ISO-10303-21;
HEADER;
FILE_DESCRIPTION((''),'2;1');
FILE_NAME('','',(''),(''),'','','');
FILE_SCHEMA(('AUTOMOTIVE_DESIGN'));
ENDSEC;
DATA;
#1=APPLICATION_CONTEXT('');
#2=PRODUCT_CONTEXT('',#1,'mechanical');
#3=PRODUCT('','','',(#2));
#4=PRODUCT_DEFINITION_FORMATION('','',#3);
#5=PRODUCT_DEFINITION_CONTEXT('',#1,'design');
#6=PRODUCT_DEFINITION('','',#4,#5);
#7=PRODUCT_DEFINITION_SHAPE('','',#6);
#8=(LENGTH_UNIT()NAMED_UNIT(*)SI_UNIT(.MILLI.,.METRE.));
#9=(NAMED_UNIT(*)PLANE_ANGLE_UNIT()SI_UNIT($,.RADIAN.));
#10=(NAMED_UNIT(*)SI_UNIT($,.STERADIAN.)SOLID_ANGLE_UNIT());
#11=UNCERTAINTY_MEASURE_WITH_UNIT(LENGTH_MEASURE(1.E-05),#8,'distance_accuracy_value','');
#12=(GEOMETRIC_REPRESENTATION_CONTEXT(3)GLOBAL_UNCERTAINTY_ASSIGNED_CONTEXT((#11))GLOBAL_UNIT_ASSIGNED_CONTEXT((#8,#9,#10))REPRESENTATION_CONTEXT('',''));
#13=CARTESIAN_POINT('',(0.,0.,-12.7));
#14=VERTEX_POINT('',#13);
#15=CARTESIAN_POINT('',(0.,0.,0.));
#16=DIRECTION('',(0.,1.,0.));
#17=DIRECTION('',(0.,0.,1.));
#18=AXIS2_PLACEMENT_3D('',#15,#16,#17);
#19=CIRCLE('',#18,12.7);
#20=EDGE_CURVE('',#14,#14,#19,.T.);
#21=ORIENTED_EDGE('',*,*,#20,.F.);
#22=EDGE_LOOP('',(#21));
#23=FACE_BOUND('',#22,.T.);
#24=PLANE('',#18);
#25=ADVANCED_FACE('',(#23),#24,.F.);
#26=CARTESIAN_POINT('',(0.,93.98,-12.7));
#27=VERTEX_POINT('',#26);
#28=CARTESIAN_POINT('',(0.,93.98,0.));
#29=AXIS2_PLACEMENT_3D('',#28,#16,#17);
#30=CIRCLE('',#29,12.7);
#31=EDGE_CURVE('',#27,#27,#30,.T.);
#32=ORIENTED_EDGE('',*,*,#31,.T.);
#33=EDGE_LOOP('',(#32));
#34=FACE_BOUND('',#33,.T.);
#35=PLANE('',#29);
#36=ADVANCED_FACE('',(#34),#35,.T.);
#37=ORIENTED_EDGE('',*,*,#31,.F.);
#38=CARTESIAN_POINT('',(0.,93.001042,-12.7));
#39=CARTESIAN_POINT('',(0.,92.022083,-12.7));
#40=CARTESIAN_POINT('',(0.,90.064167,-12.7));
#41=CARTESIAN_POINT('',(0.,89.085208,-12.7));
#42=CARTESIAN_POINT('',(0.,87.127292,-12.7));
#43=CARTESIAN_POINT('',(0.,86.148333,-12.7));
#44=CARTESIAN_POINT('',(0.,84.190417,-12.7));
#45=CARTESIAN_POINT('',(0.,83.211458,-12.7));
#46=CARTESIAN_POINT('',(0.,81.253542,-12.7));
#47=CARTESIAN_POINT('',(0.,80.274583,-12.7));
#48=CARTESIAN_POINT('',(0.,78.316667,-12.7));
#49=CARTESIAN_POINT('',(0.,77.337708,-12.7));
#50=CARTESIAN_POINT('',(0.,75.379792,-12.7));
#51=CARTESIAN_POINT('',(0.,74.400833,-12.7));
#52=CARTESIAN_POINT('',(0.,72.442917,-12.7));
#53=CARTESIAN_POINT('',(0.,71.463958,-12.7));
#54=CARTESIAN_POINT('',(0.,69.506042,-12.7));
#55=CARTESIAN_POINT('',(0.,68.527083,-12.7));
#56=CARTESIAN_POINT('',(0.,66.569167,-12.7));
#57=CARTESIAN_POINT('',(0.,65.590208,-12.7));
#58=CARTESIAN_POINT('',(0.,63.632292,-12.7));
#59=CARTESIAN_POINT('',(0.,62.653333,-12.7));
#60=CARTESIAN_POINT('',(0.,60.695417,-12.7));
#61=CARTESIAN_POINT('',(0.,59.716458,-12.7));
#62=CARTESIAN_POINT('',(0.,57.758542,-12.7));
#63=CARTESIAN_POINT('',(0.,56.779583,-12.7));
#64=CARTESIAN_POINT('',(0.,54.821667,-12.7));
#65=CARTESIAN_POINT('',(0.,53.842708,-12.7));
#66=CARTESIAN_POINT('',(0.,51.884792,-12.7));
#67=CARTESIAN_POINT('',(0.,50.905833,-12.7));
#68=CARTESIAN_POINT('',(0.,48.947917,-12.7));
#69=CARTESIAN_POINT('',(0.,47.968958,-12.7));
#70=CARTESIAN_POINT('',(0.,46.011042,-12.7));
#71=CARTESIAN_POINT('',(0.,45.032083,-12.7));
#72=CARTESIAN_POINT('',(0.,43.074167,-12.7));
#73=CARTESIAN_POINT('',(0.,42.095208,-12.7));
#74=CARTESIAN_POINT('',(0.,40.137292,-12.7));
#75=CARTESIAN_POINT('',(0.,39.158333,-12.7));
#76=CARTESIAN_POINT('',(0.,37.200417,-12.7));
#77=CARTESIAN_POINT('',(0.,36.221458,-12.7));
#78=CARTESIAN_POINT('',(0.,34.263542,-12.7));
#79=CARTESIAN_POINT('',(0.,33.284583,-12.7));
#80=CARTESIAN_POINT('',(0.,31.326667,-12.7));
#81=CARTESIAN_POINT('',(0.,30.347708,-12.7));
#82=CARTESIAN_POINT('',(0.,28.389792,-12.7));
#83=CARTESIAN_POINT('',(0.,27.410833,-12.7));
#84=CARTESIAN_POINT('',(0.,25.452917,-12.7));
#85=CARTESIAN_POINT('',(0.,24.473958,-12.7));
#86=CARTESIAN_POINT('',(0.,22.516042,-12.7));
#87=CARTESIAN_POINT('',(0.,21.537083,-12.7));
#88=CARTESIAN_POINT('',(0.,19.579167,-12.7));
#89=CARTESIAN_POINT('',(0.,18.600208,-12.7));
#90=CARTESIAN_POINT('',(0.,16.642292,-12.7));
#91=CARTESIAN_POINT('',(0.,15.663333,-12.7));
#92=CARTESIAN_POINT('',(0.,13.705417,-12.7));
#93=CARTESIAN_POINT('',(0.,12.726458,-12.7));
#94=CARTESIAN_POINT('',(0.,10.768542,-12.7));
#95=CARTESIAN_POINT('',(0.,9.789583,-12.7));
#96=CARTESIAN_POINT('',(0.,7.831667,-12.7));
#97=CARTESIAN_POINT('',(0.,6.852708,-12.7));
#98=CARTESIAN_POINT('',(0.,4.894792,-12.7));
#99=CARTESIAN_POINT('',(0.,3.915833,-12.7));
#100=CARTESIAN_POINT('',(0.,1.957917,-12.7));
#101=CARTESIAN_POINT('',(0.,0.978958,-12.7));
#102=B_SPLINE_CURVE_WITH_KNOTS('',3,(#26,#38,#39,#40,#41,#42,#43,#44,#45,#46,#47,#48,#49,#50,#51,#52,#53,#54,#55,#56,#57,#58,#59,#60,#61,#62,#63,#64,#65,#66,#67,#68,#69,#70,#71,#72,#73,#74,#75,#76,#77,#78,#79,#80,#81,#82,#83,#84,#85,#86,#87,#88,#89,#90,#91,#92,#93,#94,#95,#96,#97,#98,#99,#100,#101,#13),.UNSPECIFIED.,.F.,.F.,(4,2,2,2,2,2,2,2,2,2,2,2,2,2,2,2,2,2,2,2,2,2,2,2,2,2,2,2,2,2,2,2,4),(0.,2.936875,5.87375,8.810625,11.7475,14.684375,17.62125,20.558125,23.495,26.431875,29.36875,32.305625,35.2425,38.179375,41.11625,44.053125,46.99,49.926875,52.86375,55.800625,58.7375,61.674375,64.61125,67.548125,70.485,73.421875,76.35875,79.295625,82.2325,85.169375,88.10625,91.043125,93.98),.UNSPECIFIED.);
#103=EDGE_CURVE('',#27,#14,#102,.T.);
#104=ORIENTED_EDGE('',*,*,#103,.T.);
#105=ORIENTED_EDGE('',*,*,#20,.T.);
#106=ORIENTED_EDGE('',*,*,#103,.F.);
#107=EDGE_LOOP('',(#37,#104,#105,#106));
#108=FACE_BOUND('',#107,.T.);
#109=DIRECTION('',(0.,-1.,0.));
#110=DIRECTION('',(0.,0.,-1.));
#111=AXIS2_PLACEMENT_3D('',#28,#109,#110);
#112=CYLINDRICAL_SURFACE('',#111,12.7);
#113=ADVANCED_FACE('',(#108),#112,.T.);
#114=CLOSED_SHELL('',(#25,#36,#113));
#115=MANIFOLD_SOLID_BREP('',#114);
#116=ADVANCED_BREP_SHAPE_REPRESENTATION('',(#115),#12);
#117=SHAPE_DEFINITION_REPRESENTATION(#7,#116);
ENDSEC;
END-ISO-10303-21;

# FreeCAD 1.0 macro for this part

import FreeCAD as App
import Part
import Sketcher
from FreeCAD import Vector
Q = App.Units.Quantity

doc = App.newDocument("Part")
body = doc.addObject("PartDesign::Body", "Body")

# Sketch on XZ plane
sketch1 = doc.addObject("Sketcher::SketchObject", "Sketch")
body.addObject(sketch1)
sketch1.AttachmentSupport = (doc.XZ_Plane, [""])
sketch1.MapMode = "FlatFace"
sketch1.addGeometry(Part.Circle(Vector(0, 0, 0), Vector(0, 0, 1), 13), False)
sketch1.addConstraint([
    Sketcher.Constraint("Coincident", 0, 3, -1, 1),
    Sketcher.Constraint("Diameter", 0, Q("1 in")),
])
pad1 = doc.addObject("PartDesign::Pad", "Pad")
body.addObject(pad1)
pad1.Profile = sketch1
pad1.Length = Q("3.7 in")
pad1.Reversed = True

doc.recompute()
